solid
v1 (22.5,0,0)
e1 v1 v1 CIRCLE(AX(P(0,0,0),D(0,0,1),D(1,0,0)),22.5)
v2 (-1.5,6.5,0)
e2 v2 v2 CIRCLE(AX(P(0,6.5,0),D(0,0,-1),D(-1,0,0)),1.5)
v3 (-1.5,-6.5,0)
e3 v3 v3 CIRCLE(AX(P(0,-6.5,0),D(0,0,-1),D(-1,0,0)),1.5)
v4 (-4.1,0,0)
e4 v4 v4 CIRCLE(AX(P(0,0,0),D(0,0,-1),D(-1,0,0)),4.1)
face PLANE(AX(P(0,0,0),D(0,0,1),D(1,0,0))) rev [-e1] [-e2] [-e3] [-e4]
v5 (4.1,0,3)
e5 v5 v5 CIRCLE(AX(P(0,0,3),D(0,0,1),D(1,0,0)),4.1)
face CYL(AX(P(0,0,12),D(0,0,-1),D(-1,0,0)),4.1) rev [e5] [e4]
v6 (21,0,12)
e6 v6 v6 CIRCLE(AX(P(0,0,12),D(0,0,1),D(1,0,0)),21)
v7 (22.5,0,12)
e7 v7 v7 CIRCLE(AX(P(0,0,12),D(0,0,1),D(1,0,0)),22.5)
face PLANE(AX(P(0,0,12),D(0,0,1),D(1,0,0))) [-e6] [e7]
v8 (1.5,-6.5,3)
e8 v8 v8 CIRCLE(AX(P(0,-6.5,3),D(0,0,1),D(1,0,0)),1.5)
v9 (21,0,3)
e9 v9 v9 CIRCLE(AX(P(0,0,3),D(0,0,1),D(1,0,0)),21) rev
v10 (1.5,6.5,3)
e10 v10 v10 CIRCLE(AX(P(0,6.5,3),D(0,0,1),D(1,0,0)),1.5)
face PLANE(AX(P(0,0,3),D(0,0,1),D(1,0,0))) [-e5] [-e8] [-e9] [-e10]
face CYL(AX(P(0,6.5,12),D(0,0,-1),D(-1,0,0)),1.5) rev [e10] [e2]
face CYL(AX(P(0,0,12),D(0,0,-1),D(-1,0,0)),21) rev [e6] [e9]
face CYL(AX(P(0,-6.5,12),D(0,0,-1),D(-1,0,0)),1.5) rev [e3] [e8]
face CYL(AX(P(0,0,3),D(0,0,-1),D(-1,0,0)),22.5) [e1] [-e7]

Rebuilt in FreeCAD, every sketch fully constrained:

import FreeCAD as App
import Part
import Sketcher
from FreeCAD import Vector

doc = App.newDocument("Part")
body = doc.addObject("PartDesign::Body", "Body")

# Sketch on XY plane
sketch1 = body.newObject("Sketcher::SketchObject", "Sketch")
sketch1.AttachmentSupport = (doc.getObject("XY_Plane"), [""])
sketch1.MapMode = "FlatFace"
sketch1.addGeometry(Part.Circle(Vector(0, 0, 0), Vector(0, 0, 1), 22.5), False)
sketch1.addConstraint(Sketcher.Constraint("Coincident", 0, 3, -1, 1))
sketch1.addConstraint(Sketcher.Constraint("Diameter", 0, 45.0))
pad1 = body.newObject("PartDesign::Pad", "Pad")
pad1.Profile = sketch1
pad1.Length = 3

# Sketch on XY plane
sketch2 = body.newObject("Sketcher::SketchObject", "Sketch001")
sketch2.AttachmentSupport = (doc.getObject("XY_Plane"), [""])
sketch2.MapMode = "FlatFace"
sketch2.AttachmentOffset = App.Placement(Vector(0, 0, 3), App.Rotation())
sketch2.addGeometry(Part.Circle(Vector(0, 0, 0), Vector(0, 0, 1), 22.5), False)
sketch2.addGeometry(Part.Circle(Vector(0, 0, 0), Vector(0, 0, 1), 21), False)
sketch2.addConstraint(Sketcher.Constraint("Coincident", 0, 3, -1, 1))
sketch2.addConstraint(Sketcher.Constraint("Coincident", 1, 3, -1, 1))
sketch2.addConstraint(Sketcher.Constraint("Diameter", 0, 45.0))
sketch2.addConstraint(Sketcher.Constraint("Diameter", 1, 42.0))
pad2 = body.newObject("PartDesign::Pad", "Pad001")
pad2.Profile = sketch2
pad2.Length = 9

# Sketch on XY plane
sketch3 = body.newObject("Sketcher::SketchObject", "Sketch002")
sketch3.AttachmentSupport = (doc.getObject("XY_Plane"), [""])
sketch3.MapMode = "FlatFace"
sketch3.addGeometry(Part.Circle(Vector(0, 0, 0), Vector(0, 0, 1), 4.1), False)
sketch3.addGeometry(Part.Circle(Vector(0, 6.5, 0), Vector(0, 0, 1), 1.5), False)
sketch3.addGeometry(Part.Circle(Vector(0, -6.5, 0), Vector(0, 0, 1), 1.5), False)
sketch3.addConstraint(Sketcher.Constraint("Coincident", 0, 3, -1, 1))
sketch3.addConstraint(Sketcher.Constraint("Equal", 1, 2))
sketch3.addConstraint(Sketcher.Constraint("Symmetric", 1, 3, 2, 3, -1, 1))
sketch3.addConstraint(Sketcher.Constraint("PointOnObject", 1, 3, -2))
sketch3.addConstraint(Sketcher.Constraint("Diameter", 1, 3.0))
sketch3.addConstraint(Sketcher.Constraint("Diameter", 0, 8.2))
sketch3.addConstraint(Sketcher.Constraint("DistanceY", 2, 3, 1, 3, 13.0))
pocket1 = body.newObject("PartDesign::Pocket", "Pocket")
pocket1.Profile = sketch3
pocket1.Type = "ThroughAll"
pocket1.Reversed = True

doc.recompute()
